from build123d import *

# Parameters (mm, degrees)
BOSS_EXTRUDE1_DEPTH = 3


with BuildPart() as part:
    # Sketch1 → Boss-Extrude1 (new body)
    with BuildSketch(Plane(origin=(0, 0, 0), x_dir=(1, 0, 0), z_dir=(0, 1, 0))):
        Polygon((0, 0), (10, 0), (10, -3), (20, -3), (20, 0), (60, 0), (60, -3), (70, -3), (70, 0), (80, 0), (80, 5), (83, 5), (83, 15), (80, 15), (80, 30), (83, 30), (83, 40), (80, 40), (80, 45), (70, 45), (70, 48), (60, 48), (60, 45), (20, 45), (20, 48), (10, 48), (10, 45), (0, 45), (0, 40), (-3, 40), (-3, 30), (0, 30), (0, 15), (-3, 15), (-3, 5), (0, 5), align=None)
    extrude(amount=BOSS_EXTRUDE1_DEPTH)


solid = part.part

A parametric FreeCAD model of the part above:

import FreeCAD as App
import Part
import Sketcher

doc = App.newDocument("Part")
body = doc.addObject("PartDesign::Body", "Body")

# Sketch on XZ plane
sketch1 = body.newObject("Sketcher::SketchObject", "Sketch")
sketch1.AttachmentSupport = (doc.getObject("XZ_Plane"), [""])
sketch1.MapMode = "FlatFace"
sketch1.addGeometry(Part.LineSegment(App.Vector(0, 0, 0), App.Vector(10, 0, 0)), False)
sketch1.addGeometry(Part.LineSegment(App.Vector(10, 0, 0), App.Vector(10, 3, 0)), False)
sketch1.addGeometry(Part.LineSegment(App.Vector(10, 3, 0), App.Vector(20, 3, 0)), False)
sketch1.addGeometry(Part.LineSegment(App.Vector(20, 3, 0), App.Vector(20, 0, 0)), False)
sketch1.addGeometry(Part.LineSegment(App.Vector(20, 0, 0), App.Vector(60, 0, 0)), False)
sketch1.addGeometry(Part.LineSegment(App.Vector(60, 0, 0), App.Vector(60, 3, 0)), False)
sketch1.addGeometry(Part.LineSegment(App.Vector(60, 3, 0), App.Vector(70, 3, 0)), False)
sketch1.addGeometry(Part.LineSegment(App.Vector(70, 3, 0), App.Vector(70, 0, 0)), False)
sketch1.addGeometry(Part.LineSegment(App.Vector(70, 0, 0), App.Vector(80, 0, 0)), False)
sketch1.addGeometry(Part.LineSegment(App.Vector(80, 0, 0), App.Vector(80, -5, 0)), False)
sketch1.addGeometry(Part.LineSegment(App.Vector(80, -5, 0), App.Vector(83, -5, 0)), False)
sketch1.addGeometry(Part.LineSegment(App.Vector(83, -5, 0), App.Vector(83, -15, 0)), False)
sketch1.addGeometry(Part.LineSegment(App.Vector(83, -15, 0), App.Vector(80, -15, 0)), False)
sketch1.addGeometry(Part.LineSegment(App.Vector(80, -15, 0), App.Vector(80, -30, 0)), False)
sketch1.addGeometry(Part.LineSegment(App.Vector(80, -30, 0), App.Vector(83, -30, 0)), False)
sketch1.addGeometry(Part.LineSegment(App.Vector(83, -30, 0), App.Vector(83, -40, 0)), False)
sketch1.addGeometry(Part.LineSegment(App.Vector(83, -40, 0), App.Vector(80, -40, 0)), False)
sketch1.addGeometry(Part.LineSegment(App.Vector(80, -40, 0), App.Vector(80, -45, 0)), False)
sketch1.addGeometry(Part.LineSegment(App.Vector(80, -45, 0), App.Vector(70, -45, 0)), False)
sketch1.addGeometry(Part.LineSegment(App.Vector(70, -45, 0), App.Vector(70, -48, 0)), False)
sketch1.addGeometry(Part.LineSegment(App.Vector(70, -48, 0), App.Vector(60, -48, 0)), False)
sketch1.addGeometry(Part.LineSegment(App.Vector(60, -48, 0), App.Vector(60, -45, 0)), False)
sketch1.addGeometry(Part.LineSegment(App.Vector(60, -45, 0), App.Vector(20, -45, 0)), False)
sketch1.addGeometry(Part.LineSegment(App.Vector(20, -45, 0), App.Vector(20, -48, 0)), False)
sketch1.addGeometry(Part.LineSegment(App.Vector(20, -48, 0), App.Vector(10, -48, 0)), False)
sketch1.addGeometry(Part.LineSegment(App.Vector(10, -48, 0), App.Vector(10, -45, 0)), False)
sketch1.addGeometry(Part.LineSegment(App.Vector(10, -45, 0), App.Vector(0, -45, 0)), False)
sketch1.addGeometry(Part.LineSegment(App.Vector(0, -45, 0), App.Vector(0, -40, 0)), False)
sketch1.addGeometry(Part.LineSegment(App.Vector(0, -40, 0), App.Vector(-3, -40, 0)), False)
sketch1.addGeometry(Part.LineSegment(App.Vector(-3, -40, 0), App.Vector(-3, -30, 0)), False)
sketch1.addGeometry(Part.LineSegment(App.Vector(-3, -30, 0), App.Vector(0, -30, 0)), False)
sketch1.addGeometry(Part.LineSegment(App.Vector(0, -30, 0), App.Vector(0, -15, 0)), False)
sketch1.addGeometry(Part.LineSegment(App.Vector(0, -15, 0), App.Vector(-3, -15, 0)), False)
sketch1.addGeometry(Part.LineSegment(App.Vector(-3, -15, 0), App.Vector(-3, -5, 0)), False)
sketch1.addGeometry(Part.LineSegment(App.Vector(-3, -5, 0), App.Vector(0, -5, 0)), False)
sketch1.addGeometry(Part.LineSegment(App.Vector(0, -5, 0), App.Vector(0, 0, 0)), False)
sketch1.addConstraint(Sketcher.Constraint("Coincident", 0, 2, 1, 1))
sketch1.addConstraint(Sketcher.Constraint("Coincident", 1, 2, 2, 1))
sketch1.addConstraint(Sketcher.Constraint("Coincident", 2, 2, 3, 1))
sketch1.addConstraint(Sketcher.Constraint("Coincident", 3, 2, 4, 1))
sketch1.addConstraint(Sketcher.Constraint("Coincident", 4, 2, 5, 1))
sketch1.addConstraint(Sketcher.Constraint("Coincident", 5, 2, 6, 1))
sketch1.addConstraint(Sketcher.Constraint("Coincident", 6, 2, 7, 1))
sketch1.addConstraint(Sketcher.Constraint("Coincident", 7, 2, 8, 1))
sketch1.addConstraint(Sketcher.Constraint("Coincident", 8, 2, 9, 1))
sketch1.addConstraint(Sketcher.Constraint("Coincident", 9, 2, 10, 1))
sketch1.addConstraint(Sketcher.Constraint("Coincident", 10, 2, 11, 1))
sketch1.addConstraint(Sketcher.Constraint("Coincident", 11, 2, 12, 1))
sketch1.addConstraint(Sketcher.Constraint("Coincident", 12, 2, 13, 1))
sketch1.addConstraint(Sketcher.Constraint("Coincident", 13, 2, 14, 1))
sketch1.addConstraint(Sketcher.Constraint("Coincident", 14, 2, 15, 1))
sketch1.addConstraint(Sketcher.Constraint("Coincident", 15, 2, 16, 1))
sketch1.addConstraint(Sketcher.Constraint("Coincident", 16, 2, 17, 1))
sketch1.addConstraint(Sketcher.Constraint("Coincident", 17, 2, 18, 1))
sketch1.addConstraint(Sketcher.Constraint("Coincident", 18, 2, 19, 1))
sketch1.addConstraint(Sketcher.Constraint("Coincident", 19, 2, 20, 1))
sketch1.addConstraint(Sketcher.Constraint("Coincident", 20, 2, 21, 1))
sketch1.addConstraint(Sketcher.Constraint("Coincident", 21, 2, 22, 1))
sketch1.addConstraint(Sketcher.Constraint("Coincident", 22, 2, 23, 1))
sketch1.addConstraint(Sketcher.Constraint("Coincident", 23, 2, 24, 1))
sketch1.addConstraint(Sketcher.Constraint("Coincident", 24, 2, 25, 1))
sketch1.addConstraint(Sketcher.Constraint("Coincident", 25, 2, 26, 1))
sketch1.addConstraint(Sketcher.Constraint("Coincident", 26, 2, 27, 1))
sketch1.addConstraint(Sketcher.Constraint("Coincident", 27, 2, 28, 1))
sketch1.addConstraint(Sketcher.Constraint("Coincident", 28, 2, 29, 1))
sketch1.addConstraint(Sketcher.Constraint("Coincident", 29, 2, 30, 1))
sketch1.addConstraint(Sketcher.Constraint("Coincident", 30, 2, 31, 1))
sketch1.addConstraint(Sketcher.Constraint("Coincident", 31, 2, 32, 1))
sketch1.addConstraint(Sketcher.Constraint("Coincident", 32, 2, 33, 1))
sketch1.addConstraint(Sketcher.Constraint("Coincident", 33, 2, 34, 1))
sketch1.addConstraint(Sketcher.Constraint("Coincident", 34, 2, 35, 1))
sketch1.addConstraint(Sketcher.Constraint("Coincident", 35, 2, 0, 1))
sketch1.addConstraint(Sketcher.Constraint("Horizontal", 0))
sketch1.addConstraint(Sketcher.Constraint("Vertical", 1))
sketch1.addConstraint(Sketcher.Constraint("Horizontal", 2))
sketch1.addConstraint(Sketcher.Constraint("Vertical", 3))
sketch1.addConstraint(Sketcher.Constraint("Horizontal", 4))
sketch1.addConstraint(Sketcher.Constraint("Vertical", 5))
sketch1.addConstraint(Sketcher.Constraint("Horizontal", 6))
sketch1.addConstraint(Sketcher.Constraint("Vertical", 7))
sketch1.addConstraint(Sketcher.Constraint("Horizontal", 8))
sketch1.addConstraint(Sketcher.Constraint("Vertical", 9))
sketch1.addConstraint(Sketcher.Constraint("Horizontal", 10))
sketch1.addConstraint(Sketcher.Constraint("Vertical", 11))
sketch1.addConstraint(Sketcher.Constraint("Horizontal", 12))
sketch1.addConstraint(Sketcher.Constraint("Vertical", 13))
sketch1.addConstraint(Sketcher.Constraint("Horizontal", 14))
sketch1.addConstraint(Sketcher.Constraint("Vertical", 15))
sketch1.addConstraint(Sketcher.Constraint("Horizontal", 16))
sketch1.addConstraint(Sketcher.Constraint("Vertical", 17))
sketch1.addConstraint(Sketcher.Constraint("Horizontal", 18))
sketch1.addConstraint(Sketcher.Constraint("Vertical", 19))
sketch1.addConstraint(Sketcher.Constraint("Horizontal", 20))
sketch1.addConstraint(Sketcher.Constraint("Vertical", 21))
sketch1.addConstraint(Sketcher.Constraint("Horizontal", 22))
sketch1.addConstraint(Sketcher.Constraint("Vertical", 23))
sketch1.addConstraint(Sketcher.Constraint("Horizontal", 24))
sketch1.addConstraint(Sketcher.Constraint("Vertical", 25))
sketch1.addConstraint(Sketcher.Constraint("Horizontal", 26))
sketch1.addConstraint(Sketcher.Constraint("Vertical", 27))
sketch1.addConstraint(Sketcher.Constraint("Horizontal", 28))
sketch1.addConstraint(Sketcher.Constraint("Vertical", 29))
sketch1.addConstraint(Sketcher.Constraint("Horizontal", 30))
sketch1.addConstraint(Sketcher.Constraint("Vertical", 31))
sketch1.addConstraint(Sketcher.Constraint("Horizontal", 32))
sketch1.addConstraint(Sketcher.Constraint("Vertical", 33))
sketch1.addConstraint(Sketcher.Constraint("Horizontal", 34))
sketch1.addConstraint(Sketcher.Constraint("Vertical", 35))
sketch1.addConstraint(Sketcher.Constraint("Coincident", 35, 2, -1, 1))
sketch1.addConstraint(Sketcher.Constraint("PointOnObject", 3, 2, -1))
sketch1.addConstraint(Sketcher.Constraint("PointOnObject", 7, 2, -1))
sketch1.addConstraint(Sketcher.Constraint("PointOnObject", 26, 2, -2))
sketch1.addConstraint(Sketcher.Constraint("PointOnObject", 30, 2, -2))
sketch1.addConstraint(Sketcher.Constraint("Horizontal", 2, 2, 5, 2))
sketch1.addConstraint(Sketcher.Constraint("Horizontal", 18, 2, 21, 2))
sketch1.addConstraint(Sketcher.Constraint("Horizontal", 20, 2, 23, 2))
sketch1.addConstraint(Sketcher.Constraint("Horizontal", 22, 2, 25, 2))
sketch1.addConstraint(Sketcher.Constraint("Horizontal", 16, 2, 27, 2))
sketch1.addConstraint(Sketcher.Constraint("Horizontal", 14, 2, 29, 2))
sketch1.addConstraint(Sketcher.Constraint("Horizontal", 12, 2, 31, 2))
sketch1.addConstraint(Sketcher.Constraint("Horizontal", 10, 2, 33, 2))
sketch1.addConstraint(Sketcher.Constraint("Vertical", 9, 2, 12, 2))
sketch1.addConstraint(Sketcher.Constraint("Vertical", 11, 2, 14, 2))
sketch1.addConstraint(Sketcher.Constraint("Vertical", 13, 2, 16, 2))
sketch1.addConstraint(Sketcher.Constraint("Vertical", 7, 2, 18, 2))
sketch1.addConstraint(Sketcher.Constraint("Vertical", 5, 2, 20, 2))
sketch1.addConstraint(Sketcher.Constraint("Vertical", 3, 2, 22, 2))
sketch1.addConstraint(Sketcher.Constraint("Vertical", 1, 2, 24, 2))
sketch1.addConstraint(Sketcher.Constraint("Vertical", 29, 2, 32, 2))
sketch1.addConstraint(Sketcher.Constraint("Equal", 0, 2))
sketch1.addConstraint(Sketcher.Constraint("Equal", 2, 6))
sketch1.addConstraint(Sketcher.Constraint("Equal", 6, 8))
sketch1.addConstraint(Sketcher.Constraint("Equal", 16, 28))
sketch1.addConstraint(Sketcher.Constraint("Equal", 34, 1))
sketch1.addConstraint(Sketcher.Constraint("Equal", 26, 11))
sketch1.addConstraint(Sketcher.Constraint("Equal", 11, 15))
sketch1.addConstraint(Sketcher.Constraint("Equal", 9, 17))
sketch1.addConstraint(Sketcher.Constraint("Equal", 7, 19))
sketch1.addConstraint(Sketcher.Constraint("DistanceX", 0, 1, 0, 2, 10.0))
sketch1.addConstraint(Sketcher.Constraint("DistanceX", 4, 1, 4, 2, 40.0))
sketch1.addConstraint(Sketcher.Constraint("DistanceX", 10, 1, 10, 2, 3.0))
sketch1.addConstraint(Sketcher.Constraint("DistanceY", 9, 2, 9, 1, 5.0))
sketch1.addConstraint(Sketcher.Constraint("DistanceY", 13, 2, 13, 1, 15.0))
pad1 = body.newObject("PartDesign::Pad", "Pad")
pad1.Profile = sketch1
pad1.Length = 3
pad1.Reversed = True

doc.recompute()
